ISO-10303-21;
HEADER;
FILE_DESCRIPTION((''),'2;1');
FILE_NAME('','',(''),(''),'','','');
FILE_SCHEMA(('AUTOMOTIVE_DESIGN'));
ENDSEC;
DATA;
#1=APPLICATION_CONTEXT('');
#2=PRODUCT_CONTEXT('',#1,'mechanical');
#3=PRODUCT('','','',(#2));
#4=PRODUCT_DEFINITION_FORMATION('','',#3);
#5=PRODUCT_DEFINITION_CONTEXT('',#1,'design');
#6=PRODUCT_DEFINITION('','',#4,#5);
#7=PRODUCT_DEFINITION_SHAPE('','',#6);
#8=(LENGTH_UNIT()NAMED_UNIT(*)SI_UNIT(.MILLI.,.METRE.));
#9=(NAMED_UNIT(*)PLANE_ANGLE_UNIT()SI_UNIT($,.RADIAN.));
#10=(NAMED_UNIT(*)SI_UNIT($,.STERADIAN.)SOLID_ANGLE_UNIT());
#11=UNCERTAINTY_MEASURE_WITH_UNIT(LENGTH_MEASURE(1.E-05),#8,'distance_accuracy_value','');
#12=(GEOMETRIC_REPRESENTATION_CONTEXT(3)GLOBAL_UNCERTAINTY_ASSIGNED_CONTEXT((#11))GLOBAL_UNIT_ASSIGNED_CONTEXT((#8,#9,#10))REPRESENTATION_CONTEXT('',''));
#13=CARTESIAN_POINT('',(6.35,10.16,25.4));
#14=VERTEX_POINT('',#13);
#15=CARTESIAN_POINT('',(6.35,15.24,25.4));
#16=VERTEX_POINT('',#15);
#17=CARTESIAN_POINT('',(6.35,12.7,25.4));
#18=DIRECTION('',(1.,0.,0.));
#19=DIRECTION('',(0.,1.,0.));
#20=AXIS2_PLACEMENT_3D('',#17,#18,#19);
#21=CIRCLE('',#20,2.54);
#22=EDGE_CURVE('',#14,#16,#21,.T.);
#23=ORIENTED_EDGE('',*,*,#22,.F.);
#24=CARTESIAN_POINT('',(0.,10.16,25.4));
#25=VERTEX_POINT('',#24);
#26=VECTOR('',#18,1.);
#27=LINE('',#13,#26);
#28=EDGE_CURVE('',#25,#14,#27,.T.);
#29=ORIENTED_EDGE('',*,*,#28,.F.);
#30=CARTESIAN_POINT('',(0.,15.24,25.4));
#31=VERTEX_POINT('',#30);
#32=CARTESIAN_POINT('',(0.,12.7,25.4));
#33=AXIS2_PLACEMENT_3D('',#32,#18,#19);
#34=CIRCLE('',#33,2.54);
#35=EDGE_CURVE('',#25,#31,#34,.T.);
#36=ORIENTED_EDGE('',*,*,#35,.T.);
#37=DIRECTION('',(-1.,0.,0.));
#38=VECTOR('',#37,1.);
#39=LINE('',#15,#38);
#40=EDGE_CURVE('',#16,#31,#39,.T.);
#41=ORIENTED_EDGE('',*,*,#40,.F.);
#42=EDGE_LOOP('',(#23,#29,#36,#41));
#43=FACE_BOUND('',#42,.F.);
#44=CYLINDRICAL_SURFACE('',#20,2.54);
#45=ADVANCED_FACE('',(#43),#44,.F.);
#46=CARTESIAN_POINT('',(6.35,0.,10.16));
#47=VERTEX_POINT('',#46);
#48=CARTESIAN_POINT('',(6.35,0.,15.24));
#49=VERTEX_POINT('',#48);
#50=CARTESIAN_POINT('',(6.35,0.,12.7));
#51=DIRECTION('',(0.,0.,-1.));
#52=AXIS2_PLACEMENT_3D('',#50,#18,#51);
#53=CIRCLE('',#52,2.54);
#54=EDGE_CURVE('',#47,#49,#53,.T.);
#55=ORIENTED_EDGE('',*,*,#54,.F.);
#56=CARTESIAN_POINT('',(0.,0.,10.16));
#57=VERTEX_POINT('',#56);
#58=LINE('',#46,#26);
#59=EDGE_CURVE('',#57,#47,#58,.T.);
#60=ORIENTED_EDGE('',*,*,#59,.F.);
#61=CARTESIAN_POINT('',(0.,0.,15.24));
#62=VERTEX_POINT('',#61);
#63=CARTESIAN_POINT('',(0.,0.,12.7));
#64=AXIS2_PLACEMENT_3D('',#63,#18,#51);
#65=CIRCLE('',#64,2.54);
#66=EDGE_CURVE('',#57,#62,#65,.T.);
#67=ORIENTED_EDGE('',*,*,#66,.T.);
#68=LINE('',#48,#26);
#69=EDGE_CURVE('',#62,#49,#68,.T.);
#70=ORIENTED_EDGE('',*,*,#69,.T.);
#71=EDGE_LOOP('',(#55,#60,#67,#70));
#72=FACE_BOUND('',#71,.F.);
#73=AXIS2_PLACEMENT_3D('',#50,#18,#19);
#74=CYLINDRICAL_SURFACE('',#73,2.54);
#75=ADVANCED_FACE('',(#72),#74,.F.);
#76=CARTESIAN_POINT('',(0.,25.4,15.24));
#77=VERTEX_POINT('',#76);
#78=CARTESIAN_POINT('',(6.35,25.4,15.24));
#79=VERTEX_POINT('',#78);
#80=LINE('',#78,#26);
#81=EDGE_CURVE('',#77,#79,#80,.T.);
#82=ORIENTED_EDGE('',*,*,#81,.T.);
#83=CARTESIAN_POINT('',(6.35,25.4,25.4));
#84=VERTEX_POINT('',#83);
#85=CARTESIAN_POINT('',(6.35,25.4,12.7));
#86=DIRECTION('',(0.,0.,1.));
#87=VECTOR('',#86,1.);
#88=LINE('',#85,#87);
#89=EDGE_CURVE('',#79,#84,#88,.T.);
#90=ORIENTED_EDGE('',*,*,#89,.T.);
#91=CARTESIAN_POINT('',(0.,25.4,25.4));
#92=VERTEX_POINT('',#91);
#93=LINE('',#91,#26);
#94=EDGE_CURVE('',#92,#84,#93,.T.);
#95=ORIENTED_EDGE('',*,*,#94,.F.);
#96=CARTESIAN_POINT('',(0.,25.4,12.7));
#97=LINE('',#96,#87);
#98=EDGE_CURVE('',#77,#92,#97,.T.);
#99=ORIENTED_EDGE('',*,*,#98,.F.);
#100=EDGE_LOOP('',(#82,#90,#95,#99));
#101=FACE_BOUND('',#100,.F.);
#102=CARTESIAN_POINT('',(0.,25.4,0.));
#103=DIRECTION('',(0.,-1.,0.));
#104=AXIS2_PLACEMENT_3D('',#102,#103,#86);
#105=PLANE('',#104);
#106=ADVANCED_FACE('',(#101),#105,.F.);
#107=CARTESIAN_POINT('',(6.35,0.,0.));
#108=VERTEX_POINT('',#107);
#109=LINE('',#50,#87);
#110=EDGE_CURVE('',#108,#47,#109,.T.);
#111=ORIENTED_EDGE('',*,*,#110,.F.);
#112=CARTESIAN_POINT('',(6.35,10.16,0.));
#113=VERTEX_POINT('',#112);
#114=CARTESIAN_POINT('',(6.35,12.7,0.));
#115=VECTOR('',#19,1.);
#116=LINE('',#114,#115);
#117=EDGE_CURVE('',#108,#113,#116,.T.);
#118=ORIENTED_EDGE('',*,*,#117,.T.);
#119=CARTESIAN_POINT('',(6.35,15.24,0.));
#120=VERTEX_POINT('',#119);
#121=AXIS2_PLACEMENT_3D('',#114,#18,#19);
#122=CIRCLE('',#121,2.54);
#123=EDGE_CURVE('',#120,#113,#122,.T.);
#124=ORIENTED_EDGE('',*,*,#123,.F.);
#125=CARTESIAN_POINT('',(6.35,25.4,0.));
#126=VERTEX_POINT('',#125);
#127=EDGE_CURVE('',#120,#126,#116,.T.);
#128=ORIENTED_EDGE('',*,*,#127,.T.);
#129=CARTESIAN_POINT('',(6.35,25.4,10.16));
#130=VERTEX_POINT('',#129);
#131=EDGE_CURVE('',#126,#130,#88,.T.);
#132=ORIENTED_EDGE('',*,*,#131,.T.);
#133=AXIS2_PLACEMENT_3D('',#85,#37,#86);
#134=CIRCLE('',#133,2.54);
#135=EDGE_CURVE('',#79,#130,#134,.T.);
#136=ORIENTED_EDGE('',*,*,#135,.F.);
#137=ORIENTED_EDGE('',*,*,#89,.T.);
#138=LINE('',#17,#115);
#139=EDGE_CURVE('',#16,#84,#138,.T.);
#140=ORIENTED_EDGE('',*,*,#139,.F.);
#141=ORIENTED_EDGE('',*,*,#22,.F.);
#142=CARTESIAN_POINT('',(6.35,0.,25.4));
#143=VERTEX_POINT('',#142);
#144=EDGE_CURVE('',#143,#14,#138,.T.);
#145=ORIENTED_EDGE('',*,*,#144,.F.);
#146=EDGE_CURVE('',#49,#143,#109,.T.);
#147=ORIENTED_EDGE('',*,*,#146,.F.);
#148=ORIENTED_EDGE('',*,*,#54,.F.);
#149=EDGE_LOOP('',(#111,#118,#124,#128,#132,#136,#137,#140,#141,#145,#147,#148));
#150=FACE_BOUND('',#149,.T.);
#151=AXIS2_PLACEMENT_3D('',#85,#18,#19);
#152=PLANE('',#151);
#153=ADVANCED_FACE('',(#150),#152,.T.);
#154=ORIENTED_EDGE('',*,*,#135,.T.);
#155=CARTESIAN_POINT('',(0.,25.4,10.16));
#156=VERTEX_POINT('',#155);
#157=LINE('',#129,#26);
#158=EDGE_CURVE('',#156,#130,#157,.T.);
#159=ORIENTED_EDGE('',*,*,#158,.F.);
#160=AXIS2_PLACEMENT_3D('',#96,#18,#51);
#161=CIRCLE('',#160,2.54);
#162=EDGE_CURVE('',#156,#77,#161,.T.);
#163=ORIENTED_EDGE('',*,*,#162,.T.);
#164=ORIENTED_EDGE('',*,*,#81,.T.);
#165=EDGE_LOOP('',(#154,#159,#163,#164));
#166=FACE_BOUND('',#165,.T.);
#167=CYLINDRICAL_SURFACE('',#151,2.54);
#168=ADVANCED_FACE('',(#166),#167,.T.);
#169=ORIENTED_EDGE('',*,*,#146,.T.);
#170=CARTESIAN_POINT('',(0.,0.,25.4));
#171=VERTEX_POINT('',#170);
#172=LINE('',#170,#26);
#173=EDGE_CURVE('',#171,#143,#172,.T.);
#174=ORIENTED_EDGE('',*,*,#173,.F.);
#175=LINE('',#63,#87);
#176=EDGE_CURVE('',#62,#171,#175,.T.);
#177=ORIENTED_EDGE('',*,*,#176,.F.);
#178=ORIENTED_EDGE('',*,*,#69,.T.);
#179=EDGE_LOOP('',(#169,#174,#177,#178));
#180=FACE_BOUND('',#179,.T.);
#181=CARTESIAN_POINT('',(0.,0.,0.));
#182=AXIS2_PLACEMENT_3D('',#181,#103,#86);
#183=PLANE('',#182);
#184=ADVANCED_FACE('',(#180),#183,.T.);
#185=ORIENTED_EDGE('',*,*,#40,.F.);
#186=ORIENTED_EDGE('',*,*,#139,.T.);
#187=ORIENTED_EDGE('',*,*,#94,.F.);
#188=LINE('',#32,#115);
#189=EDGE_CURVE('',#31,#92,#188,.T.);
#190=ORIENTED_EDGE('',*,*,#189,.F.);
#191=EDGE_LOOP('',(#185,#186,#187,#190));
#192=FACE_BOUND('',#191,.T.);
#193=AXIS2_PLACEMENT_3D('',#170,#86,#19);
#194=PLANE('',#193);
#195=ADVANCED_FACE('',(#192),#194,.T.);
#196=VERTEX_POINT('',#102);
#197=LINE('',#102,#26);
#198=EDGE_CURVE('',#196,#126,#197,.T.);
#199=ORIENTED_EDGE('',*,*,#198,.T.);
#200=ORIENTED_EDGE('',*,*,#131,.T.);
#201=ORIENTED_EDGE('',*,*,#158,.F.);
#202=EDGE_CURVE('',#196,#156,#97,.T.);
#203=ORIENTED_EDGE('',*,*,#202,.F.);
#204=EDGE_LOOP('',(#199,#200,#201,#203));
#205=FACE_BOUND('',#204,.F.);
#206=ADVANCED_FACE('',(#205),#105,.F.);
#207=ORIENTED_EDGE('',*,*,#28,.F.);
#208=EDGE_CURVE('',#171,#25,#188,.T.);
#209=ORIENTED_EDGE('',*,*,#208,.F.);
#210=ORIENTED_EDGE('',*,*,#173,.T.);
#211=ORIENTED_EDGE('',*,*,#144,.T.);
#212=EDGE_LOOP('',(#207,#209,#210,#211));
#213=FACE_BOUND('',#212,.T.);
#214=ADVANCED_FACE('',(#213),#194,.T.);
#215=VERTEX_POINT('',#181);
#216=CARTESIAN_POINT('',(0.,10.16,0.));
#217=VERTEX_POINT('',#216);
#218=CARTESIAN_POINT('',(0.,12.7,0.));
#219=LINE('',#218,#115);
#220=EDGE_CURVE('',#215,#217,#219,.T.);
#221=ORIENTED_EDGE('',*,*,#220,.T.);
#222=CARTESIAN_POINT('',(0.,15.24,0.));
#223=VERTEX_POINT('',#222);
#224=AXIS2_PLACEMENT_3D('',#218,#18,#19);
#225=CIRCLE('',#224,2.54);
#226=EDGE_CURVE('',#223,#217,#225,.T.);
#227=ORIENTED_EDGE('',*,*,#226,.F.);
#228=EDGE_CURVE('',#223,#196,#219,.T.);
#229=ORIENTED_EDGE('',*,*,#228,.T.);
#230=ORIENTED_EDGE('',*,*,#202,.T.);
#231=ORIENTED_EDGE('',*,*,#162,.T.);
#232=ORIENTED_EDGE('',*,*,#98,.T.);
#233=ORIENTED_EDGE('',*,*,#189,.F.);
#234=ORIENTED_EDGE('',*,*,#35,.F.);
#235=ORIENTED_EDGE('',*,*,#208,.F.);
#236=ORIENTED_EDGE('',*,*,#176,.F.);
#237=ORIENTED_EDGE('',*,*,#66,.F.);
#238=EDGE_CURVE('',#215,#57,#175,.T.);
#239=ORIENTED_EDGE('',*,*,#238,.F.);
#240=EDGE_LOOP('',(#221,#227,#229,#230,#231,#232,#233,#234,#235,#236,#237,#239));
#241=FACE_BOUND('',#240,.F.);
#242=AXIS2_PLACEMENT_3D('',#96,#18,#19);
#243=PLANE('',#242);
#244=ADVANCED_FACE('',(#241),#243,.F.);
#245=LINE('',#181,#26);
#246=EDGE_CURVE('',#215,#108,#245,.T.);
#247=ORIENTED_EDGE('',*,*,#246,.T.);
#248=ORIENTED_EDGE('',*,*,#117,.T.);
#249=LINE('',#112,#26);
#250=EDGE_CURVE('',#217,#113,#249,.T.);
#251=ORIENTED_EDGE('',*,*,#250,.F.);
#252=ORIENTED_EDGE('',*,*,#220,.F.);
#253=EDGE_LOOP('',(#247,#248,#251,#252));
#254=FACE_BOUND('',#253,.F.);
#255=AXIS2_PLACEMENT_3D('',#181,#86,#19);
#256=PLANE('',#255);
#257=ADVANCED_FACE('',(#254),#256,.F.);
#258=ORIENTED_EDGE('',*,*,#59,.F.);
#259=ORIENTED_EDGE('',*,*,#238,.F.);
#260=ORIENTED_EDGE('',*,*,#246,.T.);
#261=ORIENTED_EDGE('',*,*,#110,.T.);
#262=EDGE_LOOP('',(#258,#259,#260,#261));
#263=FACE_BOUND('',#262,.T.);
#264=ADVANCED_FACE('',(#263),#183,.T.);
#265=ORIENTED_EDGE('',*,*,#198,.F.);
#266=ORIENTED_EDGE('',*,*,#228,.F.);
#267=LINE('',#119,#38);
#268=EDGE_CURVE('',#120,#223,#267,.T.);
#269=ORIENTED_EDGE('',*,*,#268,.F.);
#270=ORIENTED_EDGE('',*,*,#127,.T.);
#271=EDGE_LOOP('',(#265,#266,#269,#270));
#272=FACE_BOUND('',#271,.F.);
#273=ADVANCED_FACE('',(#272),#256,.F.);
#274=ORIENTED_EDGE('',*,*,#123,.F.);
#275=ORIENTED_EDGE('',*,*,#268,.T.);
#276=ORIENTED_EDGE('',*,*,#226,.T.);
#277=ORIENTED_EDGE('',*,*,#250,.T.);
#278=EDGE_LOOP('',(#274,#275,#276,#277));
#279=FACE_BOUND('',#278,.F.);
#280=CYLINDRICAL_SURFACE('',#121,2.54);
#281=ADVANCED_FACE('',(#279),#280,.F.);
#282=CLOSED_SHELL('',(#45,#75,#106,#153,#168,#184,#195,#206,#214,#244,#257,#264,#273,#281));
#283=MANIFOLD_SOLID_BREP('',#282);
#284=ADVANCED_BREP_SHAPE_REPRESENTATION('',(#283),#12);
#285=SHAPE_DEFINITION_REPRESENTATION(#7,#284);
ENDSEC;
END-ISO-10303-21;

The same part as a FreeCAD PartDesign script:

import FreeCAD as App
import Part
import Sketcher
Q = App.Units.Quantity

doc = App.newDocument("Part")
params = doc.addObject("Spreadsheet::Sheet", "Params")
for row, (alias, value) in enumerate([
    ("sketch1_width", "1 in"),
    ("pad1_length", "0.25 in"),
    ("sketch2_diameter", "0.2 in"),
    ("pocket1_length", "0.25 in"),
    ("sketch3_diameter", "0.2 in"),
    ("pad2_length", "0.25 in"),
], start=1):
    params.set(f"A{row}", alias)
    params.set(f"B{row}", "=" + value)
    params.setAlias(f"B{row}", alias)

body = doc.addObject("PartDesign::Body", "Body")

# Sketch on YZ plane
sketch1 = body.newObject("Sketcher::SketchObject", "Sketch")
sketch1.AttachmentSupport = (doc.getObject("YZ_Plane"), [""])
sketch1.MapMode = "FlatFace"
sketch1.addGeometry([
    Part.LineSegment(App.Vector(0, 25, 0), App.Vector(0, 0, 0)),
    Part.LineSegment(App.Vector(0, 0, 0), App.Vector(25, 0, 0)),
    Part.LineSegment(App.Vector(25, 0, 0), App.Vector(25, 25, 0)),
    Part.LineSegment(App.Vector(25, 25, 0), App.Vector(0, 25, 0)),
], False)
sketch1.addConstraint([
    Sketcher.Constraint("Coincident", 0, 2, 1, 1),
    Sketcher.Constraint("Coincident", 1, 2, 2, 1),
    Sketcher.Constraint("Coincident", 2, 2, 3, 1),
    Sketcher.Constraint("Coincident", 3, 2, 0, 1),
    Sketcher.Constraint("Vertical", 0),
    Sketcher.Constraint("Horizontal", 1),
    Sketcher.Constraint("Vertical", 2),
    Sketcher.Constraint("Horizontal", 3),
    Sketcher.Constraint("Coincident", 0, 2, -1, 1),
    Sketcher.Constraint("Equal", 3, 0),
    Sketcher.Constraint("DistanceX", 1, 1, 1, 2, Q("1 in")),
])
sketch1.setExpression("Constraints[10]", "Params.sketch1_width")
pad1 = body.newObject("PartDesign::Pad", "Pad")
pad1.Profile = sketch1
pad1.setExpression("Length", "Params.pad1_length")

# Sketch on YZ plane
sketch2 = body.newObject("Sketcher::SketchObject", "Sketch001")
sketch2.AttachmentSupport = (doc.getObject("YZ_Plane"), [""])
sketch2.MapMode = "FlatFace"
sketch2.AttachmentOffset = App.Placement(App.Vector(0, 0, 0.25 * 25.4), App.Rotation())
sketch2.addGeometry([
    Part.Circle(App.Vector(12.7, 0, 0), App.Vector(0, 0, 1), 2.5),
    Part.Circle(App.Vector(0, 12.7, 0), App.Vector(0, 0, 1), 2.5),
    Part.Circle(App.Vector(12.7, 25.4, 0), App.Vector(0, 0, 1), 2.5),
], False)
sketch2.addConstraint([
    Sketcher.Constraint("Equal", 0, 1),
    Sketcher.Constraint("Equal", 1, 2),
    Sketcher.Constraint("PointOnObject", 0, 3, -1),
    Sketcher.Constraint("PointOnObject", 1, 3, -2),
    Sketcher.Constraint("Vertical", 0, 3, 2, 3),
    Sketcher.Constraint("Diameter", 0, Q("0.2 in")),
    Sketcher.Constraint("DistanceY", -1, 1, 2, 3, Q("1 in")),
    Sketcher.Constraint("DistanceX", -1, 1, 0, 3, Q("0.5 in")),
    Sketcher.Constraint("DistanceY", -1, 1, 1, 3, Q("0.5 in")),
])
sketch2.setExpression("Constraints[5]", "Params.sketch2_diameter")
pocket1 = body.newObject("PartDesign::Pocket", "Pocket")
pocket1.Profile = sketch2
pocket1.setExpression("Length", "Params.pocket1_length")

# Sketch on YZ plane
sketch3 = body.newObject("Sketcher::SketchObject", "Sketch002")
sketch3.AttachmentSupport = (doc.getObject("YZ_Plane"), [""])
sketch3.MapMode = "FlatFace"
sketch3.AttachmentOffset = App.Placement(App.Vector(0, 0, 0.25 * 25.4), App.Rotation())
sketch3.addGeometry(Part.Circle(App.Vector(25.4, 12.7, 0), App.Vector(0, 0, 1), 2.5), False)
sketch3.addConstraint([
    Sketcher.Constraint("Diameter", 0, Q("0.2 in")),
    Sketcher.Constraint("DistanceX", -1, 1, 0, 3, Q("1 in")),
    Sketcher.Constraint("DistanceY", -1, 1, 0, 3, Q("0.5 in")),
])
sketch3.setExpression("Constraints[0]", "Params.sketch3_diameter")
pad2 = body.newObject("PartDesign::Pad", "Pad001")
pad2.Profile = sketch3
pad2.setExpression("Length", "Params.pad2_length")
pad2.Reversed = True

doc.recompute()
